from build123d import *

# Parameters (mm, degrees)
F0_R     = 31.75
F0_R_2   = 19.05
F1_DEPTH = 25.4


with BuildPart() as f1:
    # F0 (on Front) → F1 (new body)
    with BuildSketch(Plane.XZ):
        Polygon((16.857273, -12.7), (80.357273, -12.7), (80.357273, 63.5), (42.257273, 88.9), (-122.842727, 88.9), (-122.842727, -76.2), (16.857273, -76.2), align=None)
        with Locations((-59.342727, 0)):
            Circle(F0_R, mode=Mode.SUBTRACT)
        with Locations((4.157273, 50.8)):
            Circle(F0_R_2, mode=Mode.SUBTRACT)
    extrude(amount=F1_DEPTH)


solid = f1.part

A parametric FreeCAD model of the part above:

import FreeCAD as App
import Part
import Sketcher

V = App.Vector
Q = App.Units.Quantity


def add_polygon(sketch, points):
    """Adds a closed chain of lines whose ends are joined by coincident constraints."""
    first, n = sketch.GeometryCount, len(points)
    for a, b in zip(points, points[1:] + points[:1]):
        sketch.addGeometry(Part.LineSegment(App.Vector(*a, 0), App.Vector(*b, 0)), False)
    for i in range(n):
        sketch.addConstraint(Sketcher.Constraint("Coincident", first + i, 2, first + (i + 1) % n, 1))

doc = App.newDocument("Part")
body = doc.addObject("PartDesign::Body", "Body")

# Sketch on XZ plane
sketch1 = body.newObject("Sketcher::SketchObject", "Sketch")
sketch1.AttachmentSupport = (doc.getObject("XZ_Plane"), [""])
sketch1.MapMode = "FlatFace"
add_polygon(sketch1, [(17, -13), (80, -13), (80, 64), (42, 89), (-123, 89), (-123, -76), (17, -76)])  # lines 0-6
sketch1.addGeometry(Part.Circle(V(-59, 0, 0), V(0, 0, 1), 32), False)  # 7
sketch1.addGeometry(Part.Circle(V(4, 51, 0), V(0, 0, 1), 19), False)  # 8
sketch1.addConstraint(Sketcher.Constraint("Horizontal", 0))
sketch1.addConstraint(Sketcher.Constraint("Vertical", 1))
sketch1.addConstraint(Sketcher.Constraint("Horizontal", 3))
sketch1.addConstraint(Sketcher.Constraint("Vertical", 4))
sketch1.addConstraint(Sketcher.Constraint("Horizontal", 5))
sketch1.addConstraint(Sketcher.Constraint("Vertical", 6))
sketch1.addConstraint(Sketcher.Constraint("PointOnObject", 7, 3, -1))
sketch1.addConstraint(Sketcher.Constraint("Equal", 3, 4))
sketch1.addConstraint(Sketcher.Constraint("Equal", 0, 6))
sketch1.addConstraint(Sketcher.Constraint("Diameter", 7, Q("2.5 in")))
sketch1.addConstraint(Sketcher.Constraint("Diameter", 8, Q("1.5 in")))
sketch1.addConstraint(Sketcher.Constraint("DistanceY", 1, 1, 1, 2, Q("3 in")))
sketch1.addConstraint(Sketcher.Constraint("DistanceX", 0, 1, 0, 2, Q("2.5 in")))
sketch1.addConstraint(Sketcher.Constraint("DistanceX", 3, 2, 3, 1, Q("6.5 in")))
sketch1.addConstraint(Sketcher.Constraint("DistanceX", 5, 1, 5, 2, Q("5.5 in")))
sketch1.addConstraint(Sketcher.Constraint("DistanceY", -1, 1, 8, 3, Q("2 in")))
sketch1.addConstraint(Sketcher.Constraint("DistanceY", 4, 2, -1, 1, Q("3 in")))
sketch1.addConstraint(Sketcher.Constraint("DistanceX", 8, 3, 0, 2, Q("3 in")))
sketch1.addConstraint(Sketcher.Constraint("DistanceX", 7, 3, 2, 2, Q("4 in")))
sketch1.addConstraint(Sketcher.Constraint("DistanceX", 7, 3, -1, 1, 59.342727))
pad1 = body.newObject("PartDesign::Pad", "Pad")
pad1.Profile = sketch1
pad1.Length = Q("1 in")

doc.recompute()
